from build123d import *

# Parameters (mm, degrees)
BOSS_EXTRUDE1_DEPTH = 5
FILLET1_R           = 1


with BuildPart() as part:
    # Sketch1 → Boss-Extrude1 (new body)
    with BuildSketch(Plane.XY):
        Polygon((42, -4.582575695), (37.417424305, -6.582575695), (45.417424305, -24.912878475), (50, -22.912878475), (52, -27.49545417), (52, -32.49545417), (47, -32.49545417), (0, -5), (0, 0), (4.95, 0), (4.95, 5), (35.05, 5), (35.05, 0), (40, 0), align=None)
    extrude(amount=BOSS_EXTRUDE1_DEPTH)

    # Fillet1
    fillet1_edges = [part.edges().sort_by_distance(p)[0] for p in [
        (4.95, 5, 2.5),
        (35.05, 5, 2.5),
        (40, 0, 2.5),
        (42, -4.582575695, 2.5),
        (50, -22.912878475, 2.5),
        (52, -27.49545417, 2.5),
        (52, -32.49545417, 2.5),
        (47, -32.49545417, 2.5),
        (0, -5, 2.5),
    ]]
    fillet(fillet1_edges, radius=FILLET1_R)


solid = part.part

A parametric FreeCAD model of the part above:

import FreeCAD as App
import Part
import Sketcher
from FreeCAD import Vector
Q = App.Units.Quantity


def edges_at(feature, points):
    """Names of the edges that pass closest to the given points."""
    edges = feature.Shape.Edges
    near = lambda p: min(range(len(edges)), key=lambda i: edges[i].distToShape(Part.Vertex(*p))[0])
    return sorted({f"Edge{near(p) + 1}" for p in points})

doc = App.newDocument("Part")
body = doc.addObject("PartDesign::Body", "Body")

# Sketch on XY plane
sketch1 = body.newObject("Sketcher::SketchObject", "Sketch")
sketch1.AttachmentSupport = (doc.getObject("XY_Plane"), [""])
sketch1.MapMode = "FlatFace"
sketch1.addGeometry([
    Part.LineSegment(Vector(37.417424, -6.582576, 0), Vector(42, -4.582576, 0)),  # 0
    Part.LineSegment(Vector(42, -4.582576, 0), Vector(40, 0, 0)),  # 1
    Part.LineSegment(Vector(40, 0, 0), Vector(35.05, 0, 0)),  # 2
    Part.LineSegment(Vector(35.05, 0, 0), Vector(35.05, 5, 0)),  # 3
    Part.LineSegment(Vector(35.05, 5, 0), Vector(4.95, 5, 0)),  # 4
    Part.LineSegment(Vector(4.95, 5, 0), Vector(4.95, 0, 0)),  # 5
    Part.LineSegment(Vector(4.95, 0, 0), Vector(0, 0, 0)),  # 6
    Part.LineSegment(Vector(0, 0, 0), Vector(0, -5, 0)),  # 7
    Part.LineSegment(Vector(0, -5, 0), Vector(47, -32.495454, 0)),  # 8
    Part.LineSegment(Vector(47, -32.495454, 0), Vector(52, -32.495454, 0)),  # 9
    Part.LineSegment(Vector(52, -32.495454, 0), Vector(52, -27.495454, 0)),  # 10
    Part.LineSegment(Vector(52, -27.495454, 0), Vector(50, -22.912878, 0)),  # 11
    Part.LineSegment(Vector(50, -22.912878, 0), Vector(45.417424, -24.912878, 0)),  # 12
    Part.LineSegment(Vector(45.417424, -24.912878, 0), Vector(37.417424, -6.582576, 0)),  # 13
], False)
sketch1.addConstraint([
    Sketcher.Constraint("Coincident", 0, 2, 1, 1),
    Sketcher.Constraint("Coincident", 1, 2, 2, 1),
    Sketcher.Constraint("Coincident", 2, 2, 3, 1),
    Sketcher.Constraint("Coincident", 3, 2, 4, 1),
    Sketcher.Constraint("Coincident", 4, 2, 5, 1),
    Sketcher.Constraint("Coincident", 5, 2, 6, 1),
    Sketcher.Constraint("Coincident", 6, 2, 7, 1),
    Sketcher.Constraint("Coincident", 7, 2, 8, 1),
    Sketcher.Constraint("Coincident", 8, 2, 9, 1),
    Sketcher.Constraint("Coincident", 9, 2, 10, 1),
    Sketcher.Constraint("Coincident", 10, 2, 11, 1),
    Sketcher.Constraint("Coincident", 11, 2, 12, 1),
    Sketcher.Constraint("Coincident", 12, 2, 13, 1),
    Sketcher.Constraint("Coincident", 13, 2, 0, 1),
    Sketcher.Constraint("Horizontal", 2),
    Sketcher.Constraint("Vertical", 3),
    Sketcher.Constraint("Horizontal", 4),
    Sketcher.Constraint("Vertical", 5),
    Sketcher.Constraint("Horizontal", 6),
    Sketcher.Constraint("Vertical", 7),
    Sketcher.Constraint("Horizontal", 9),
    Sketcher.Constraint("Vertical", 10),
    Sketcher.Constraint("Coincident", 6, 2, -1, 1),
    Sketcher.Constraint("PointOnObject", 1, 2, -1),
    Sketcher.Constraint("Perpendicular", 0, 1),
    Sketcher.Constraint("Parallel", 1, 11),
    Sketcher.Constraint("Perpendicular", 11, 12),
    Sketcher.Constraint("Perpendicular", 12, 13),
    Sketcher.Constraint("Equal", 2, 6),
    Sketcher.Constraint("Equal", 9, 3),
    Sketcher.Constraint("Equal", 5, 7),
    Sketcher.Constraint("Equal", 7, 10),
    Sketcher.Constraint("Equal", 0, 1),
    Sketcher.Constraint("Equal", 1, 11),
    Sketcher.Constraint("Equal", 11, 12),
    Sketcher.Constraint("DistanceX", 9, 1, 9, 2, Q("5 mm")),
    Sketcher.Constraint("Distance", 0, Q("5 mm")),
    Sketcher.Constraint("Distance", 13, Q("20 mm")),
    Sketcher.Constraint("DistanceX", 4, 2, 4, 1, Q("30.1 mm")),
    Sketcher.Constraint("DistanceX", -1, 1, 0, 2, Q("42 mm")),
    Sketcher.Constraint("DistanceX", -1, 1, 1, 2, Q("40 mm")),
])
pad1 = body.newObject("PartDesign::Pad", "Pad")
pad1.Profile = sketch1
pad1.Length = 5
doc.recompute()

fillet = body.newObject("PartDesign::Fillet", "Fillet")
fillet.Base = (pad1, edges_at(pad1, [
    (4.95, 5, 2.5),
    (35.05, 5, 2.5),
    (40, 0, 2.5),
    (42, -4.583, 2.5),
    (50, -22.913, 2.5),
    (52, -27.495, 2.5),
    (52, -32.495, 2.5),
    (47, -32.495, 2.5),
    (0, -5, 2.5),
]))
fillet.Radius = 1

doc.recompute()
